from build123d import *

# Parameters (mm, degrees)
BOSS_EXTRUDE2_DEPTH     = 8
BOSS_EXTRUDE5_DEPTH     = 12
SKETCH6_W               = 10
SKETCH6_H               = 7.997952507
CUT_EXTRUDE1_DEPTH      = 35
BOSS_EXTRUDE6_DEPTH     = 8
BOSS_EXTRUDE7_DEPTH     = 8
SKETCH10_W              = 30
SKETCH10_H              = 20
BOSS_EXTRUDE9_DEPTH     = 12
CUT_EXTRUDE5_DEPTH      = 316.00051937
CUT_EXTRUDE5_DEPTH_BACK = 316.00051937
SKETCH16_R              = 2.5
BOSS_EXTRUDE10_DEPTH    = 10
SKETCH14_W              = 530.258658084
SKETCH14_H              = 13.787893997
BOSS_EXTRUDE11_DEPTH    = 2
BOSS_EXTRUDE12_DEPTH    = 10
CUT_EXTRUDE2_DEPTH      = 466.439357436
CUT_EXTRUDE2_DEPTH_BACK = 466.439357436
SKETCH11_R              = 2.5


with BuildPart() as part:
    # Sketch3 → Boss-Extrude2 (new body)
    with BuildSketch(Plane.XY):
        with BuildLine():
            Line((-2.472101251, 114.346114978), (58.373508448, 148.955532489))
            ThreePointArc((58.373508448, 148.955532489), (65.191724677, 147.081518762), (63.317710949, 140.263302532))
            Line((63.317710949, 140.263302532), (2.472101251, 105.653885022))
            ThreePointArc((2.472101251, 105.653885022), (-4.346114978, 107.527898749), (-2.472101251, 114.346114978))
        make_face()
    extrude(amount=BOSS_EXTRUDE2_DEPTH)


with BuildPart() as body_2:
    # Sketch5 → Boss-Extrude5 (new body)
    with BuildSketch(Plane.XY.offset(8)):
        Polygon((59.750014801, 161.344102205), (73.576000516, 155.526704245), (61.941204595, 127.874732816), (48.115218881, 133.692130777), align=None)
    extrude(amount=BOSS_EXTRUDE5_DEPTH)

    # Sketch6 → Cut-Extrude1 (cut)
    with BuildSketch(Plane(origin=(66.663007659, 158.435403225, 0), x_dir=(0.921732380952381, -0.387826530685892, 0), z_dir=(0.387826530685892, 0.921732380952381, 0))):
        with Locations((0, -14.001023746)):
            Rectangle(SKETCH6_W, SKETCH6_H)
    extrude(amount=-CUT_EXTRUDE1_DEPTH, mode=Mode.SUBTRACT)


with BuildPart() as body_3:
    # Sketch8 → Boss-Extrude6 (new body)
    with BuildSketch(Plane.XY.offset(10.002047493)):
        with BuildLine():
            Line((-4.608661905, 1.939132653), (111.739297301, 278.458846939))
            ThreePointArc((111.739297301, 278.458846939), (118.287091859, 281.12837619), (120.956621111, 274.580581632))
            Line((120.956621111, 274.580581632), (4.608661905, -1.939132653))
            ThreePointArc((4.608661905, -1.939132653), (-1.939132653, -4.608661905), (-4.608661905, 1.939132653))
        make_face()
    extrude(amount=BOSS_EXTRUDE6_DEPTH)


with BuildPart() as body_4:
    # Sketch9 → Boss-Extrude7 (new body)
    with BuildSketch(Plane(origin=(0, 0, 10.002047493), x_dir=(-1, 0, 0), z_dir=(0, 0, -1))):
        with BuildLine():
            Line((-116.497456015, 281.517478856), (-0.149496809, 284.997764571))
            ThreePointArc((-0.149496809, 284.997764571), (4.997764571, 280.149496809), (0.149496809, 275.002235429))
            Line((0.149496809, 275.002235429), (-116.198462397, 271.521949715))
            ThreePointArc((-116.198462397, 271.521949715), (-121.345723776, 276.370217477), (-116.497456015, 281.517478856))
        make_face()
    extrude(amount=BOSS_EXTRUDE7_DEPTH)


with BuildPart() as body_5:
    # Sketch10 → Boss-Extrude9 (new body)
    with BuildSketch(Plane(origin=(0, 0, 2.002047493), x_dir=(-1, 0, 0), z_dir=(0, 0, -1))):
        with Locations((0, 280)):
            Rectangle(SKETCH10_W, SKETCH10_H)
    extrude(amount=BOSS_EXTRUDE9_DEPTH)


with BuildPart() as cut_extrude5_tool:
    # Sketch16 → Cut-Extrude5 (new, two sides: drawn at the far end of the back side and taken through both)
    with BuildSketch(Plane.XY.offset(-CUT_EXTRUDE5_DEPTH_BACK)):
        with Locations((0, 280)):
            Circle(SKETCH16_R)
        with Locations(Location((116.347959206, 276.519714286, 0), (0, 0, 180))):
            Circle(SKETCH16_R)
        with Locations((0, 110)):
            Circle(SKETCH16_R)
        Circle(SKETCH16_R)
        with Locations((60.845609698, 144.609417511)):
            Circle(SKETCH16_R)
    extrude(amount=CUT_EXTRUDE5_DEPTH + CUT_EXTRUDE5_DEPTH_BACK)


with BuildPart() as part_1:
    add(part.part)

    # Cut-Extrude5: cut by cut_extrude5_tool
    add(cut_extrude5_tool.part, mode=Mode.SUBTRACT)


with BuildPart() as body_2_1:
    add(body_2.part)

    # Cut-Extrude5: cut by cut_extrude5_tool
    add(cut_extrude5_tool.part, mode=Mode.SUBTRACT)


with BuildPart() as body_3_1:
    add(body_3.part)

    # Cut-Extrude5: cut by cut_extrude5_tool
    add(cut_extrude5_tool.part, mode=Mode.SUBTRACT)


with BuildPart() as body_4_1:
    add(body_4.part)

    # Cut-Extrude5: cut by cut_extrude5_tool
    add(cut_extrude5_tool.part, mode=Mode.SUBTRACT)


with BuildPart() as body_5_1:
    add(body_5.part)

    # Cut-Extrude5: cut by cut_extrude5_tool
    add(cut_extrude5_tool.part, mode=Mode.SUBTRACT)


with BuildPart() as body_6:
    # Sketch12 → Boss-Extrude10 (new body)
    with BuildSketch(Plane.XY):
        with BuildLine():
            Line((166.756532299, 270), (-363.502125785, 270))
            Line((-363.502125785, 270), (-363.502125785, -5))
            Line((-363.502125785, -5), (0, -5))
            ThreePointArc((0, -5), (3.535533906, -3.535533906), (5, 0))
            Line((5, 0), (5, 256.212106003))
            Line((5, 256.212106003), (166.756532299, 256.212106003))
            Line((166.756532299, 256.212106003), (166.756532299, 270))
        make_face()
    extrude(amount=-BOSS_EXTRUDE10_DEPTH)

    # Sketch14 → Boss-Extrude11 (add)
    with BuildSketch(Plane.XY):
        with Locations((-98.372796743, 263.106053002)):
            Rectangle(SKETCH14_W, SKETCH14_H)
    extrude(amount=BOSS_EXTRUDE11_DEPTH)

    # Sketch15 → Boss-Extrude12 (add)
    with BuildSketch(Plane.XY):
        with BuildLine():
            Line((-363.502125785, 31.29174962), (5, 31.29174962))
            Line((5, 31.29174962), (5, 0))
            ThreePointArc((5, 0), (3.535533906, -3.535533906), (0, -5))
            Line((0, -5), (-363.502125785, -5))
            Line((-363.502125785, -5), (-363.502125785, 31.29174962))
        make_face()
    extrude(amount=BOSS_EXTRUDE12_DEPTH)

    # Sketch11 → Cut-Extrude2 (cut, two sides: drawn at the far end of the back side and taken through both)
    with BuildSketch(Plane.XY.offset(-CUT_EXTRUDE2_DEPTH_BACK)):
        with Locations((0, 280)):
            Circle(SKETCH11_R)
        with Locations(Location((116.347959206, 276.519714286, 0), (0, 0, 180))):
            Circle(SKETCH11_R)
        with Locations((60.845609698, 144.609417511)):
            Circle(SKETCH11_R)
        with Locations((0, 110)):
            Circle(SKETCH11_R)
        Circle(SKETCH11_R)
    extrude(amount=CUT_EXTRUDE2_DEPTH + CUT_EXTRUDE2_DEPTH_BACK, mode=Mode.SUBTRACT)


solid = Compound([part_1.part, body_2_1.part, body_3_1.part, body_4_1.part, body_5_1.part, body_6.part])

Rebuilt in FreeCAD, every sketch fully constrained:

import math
import FreeCAD as App
import Part
import Sketcher

V = App.Vector
Q = App.Units.Quantity


def add_polygon(sketch, points):
    """Adds a closed chain of lines whose ends are joined by coincident constraints."""
    first, n = sketch.GeometryCount, len(points)
    for a, b in zip(points, points[1:] + points[:1]):
        sketch.addGeometry(Part.LineSegment(App.Vector(*a, 0), App.Vector(*b, 0)), False)
    for i in range(n):
        sketch.addConstraint(Sketcher.Constraint("Coincident", first + i, 2, first + (i + 1) % n, 1))

doc = App.newDocument("Part")
params = doc.addObject("Spreadsheet::Sheet", "Params")
for row, (alias, value) in enumerate([
    ("sketch1_radius", "5 mm"),
    ("sketch1_length", "70 mm"),
    ("pad1_length", "8 mm"),
    ("sketch2_length", "15 mm"),
    ("sketch2_length2", "30 mm"),
    ("pad2_length", "12 mm"),
    ("sketch3_width", "10 mm"),
    ("pocket1_length", "35 mm"),
    ("sketch4_radius", "5 mm"),
    ("sketch4_length", "300 mm"),
    ("pad3_length", "8 mm"),
    ("sketch5_radius", "5 mm"),
    ("sketch5_length", "116.4 mm"),
    ("pad4_length", "8 mm"),
    ("sketch6_width", "30 mm"),
    ("sketch6_height", "20 mm"),
    ("pad5_length", "12 mm"),
    ("sketch7_diameter", "5 mm"),
    ("pad6_length", "316.000519 mm"),
    ("pad6_length2", "316.000519 mm"),
    ("sketch8_radius", "5 mm"),
    ("sketch8_height", "275 mm"),
    ("pad7_length", "10 mm"),
    ("pad8_length", "2 mm"),
    ("sketch10_radius", "5 mm"),
    ("pad9_length", "10 mm"),
    ("sketch11_diameter", "5 mm"),
], start=1):
    params.set(f"A{row}", alias)
    params.set(f"B{row}", "=" + value)
    params.setAlias(f"B{row}", alias)

body = doc.addObject("PartDesign::Body", "Body")

sketch1 = doc.addObject("Sketcher::SketchObject", "Sketch")
body.addObject(sketch1)
sketch1.AttachmentSupport = (doc.XY_Plane, [""])
sketch1.MapMode = "FlatFace"
sketch1.addGeometry([
    Part.LineSegment(V(58.373508, 148.955532, 0), V(-2.472101, 114.346115, 0)),
    Part.ArcOfCircle(Part.Circle(V(0, 110, 0), V(0, 0, 1), 5), math.radians(119.631528), math.radians(299.631528)),
    Part.LineSegment(V(2.472101, 105.653885, 0), V(63.317711, 140.263303, 0)),
    Part.ArcOfCircle(Part.Circle(V(60.84561, 144.609418, 0), V(0, 0, 1), 5), math.radians(-60.368472), math.radians(119.631528)),
], False)
sketch1.addConstraint([
    Sketcher.Constraint("Tangent", 0, 2, 1, 1),
    Sketcher.Constraint("Tangent", 1, 2, 2, 1),
    Sketcher.Constraint("Tangent", 2, 2, 3, 1),
    Sketcher.Constraint("Tangent", 3, 2, 0, 1),
    Sketcher.Constraint("Equal", 1, 3),
    Sketcher.Constraint("PointOnObject", 1, 3, -2),
    Sketcher.Constraint("Radius", 1, Q("5 mm")),
    Sketcher.Constraint("Distance", 0, Q("70 mm")),
    Sketcher.Constraint("DistanceY", -1, 1, 1, 3, Q("110 mm")),
    Sketcher.Constraint("DistanceX", 0, 2, -1, 1, Q("2.472101 mm")),
])
sketch1.setExpression("Constraints[6]", "Params.sketch1_radius")
sketch1.setExpression("Constraints[7]", "Params.sketch1_length")
pad1 = doc.addObject("PartDesign::Pad", "Pad")
body.addObject(pad1)
pad1.Profile = sketch1
pad1.setExpression("Length", "Params.pad1_length")
body2 = doc.addObject("PartDesign::Body", "Body001")

sketch2 = doc.addObject("Sketcher::SketchObject", "Sketch001")
body2.addObject(sketch2)
sketch2.AttachmentSupport = (doc.getObject("XY_Plane001"), [""])
sketch2.MapMode = "FlatFace"
sketch2.AttachmentOffset = App.Placement(V(0, 0, 8), App.Rotation())
add_polygon(sketch2, [(73.576001, 155.526704), (59.750015, 161.344102), (48.115219, 133.692131), (61.941205, 127.874733)])
sketch2.addConstraint([
    Sketcher.Constraint("Perpendicular", 0, 1),
    Sketcher.Constraint("Perpendicular", 1, 2),
    Sketcher.Constraint("Perpendicular", 2, 3),
    Sketcher.Constraint("Distance", 0, Q("15 mm")),
    Sketcher.Constraint("Distance", 1, Q("30 mm")),
    Sketcher.Constraint("DistanceX", -1, 1, 3, 2, Q("73.576001 mm")),
    Sketcher.Constraint("DistanceX", -1, 1, 1, 2, Q("48.115219 mm")),
    Sketcher.Constraint("DistanceY", -1, 1, 1, 2, Q("133.692131 mm")),
])
sketch2.setExpression("Constraints[7]", "Params.sketch2_length")
sketch2.setExpression("Constraints[8]", "Params.sketch2_length2")
pad2 = doc.addObject("PartDesign::Pad", "Pad001")
body2.addObject(pad2)
pad2.Profile = sketch2
pad2.setExpression("Length", "Params.pad2_length")

sketch3 = doc.addObject("Sketcher::SketchObject", "Sketch002")
body2.addObject(sketch3)
sketch3.Placement = App.Placement(V(66.663008, 158.435403, 0), App.Rotation(V(0.921732381, -0.387826531, 0), V(0, 0, -1), V(0.387826531, 0.921732381, 0), "ZXY"))
add_polygon(sketch3, [(-5, -10.002047), (-5, -18), (5, -18), (5, -10.002047)])
sketch3.addConstraint([
    Sketcher.Constraint("Vertical", 0),
    Sketcher.Constraint("Horizontal", 1),
    Sketcher.Constraint("Vertical", 2),
    Sketcher.Constraint("Horizontal", 3),
    Sketcher.Constraint("DistanceX", 1, 1, 1, 2, Q("10 mm")),
    Sketcher.Constraint("DistanceX", 0, 2, -1, 1, Q("5 mm")),
    Sketcher.Constraint("DistanceY", 0, 2, -1, 1, Q("18 mm")),
    Sketcher.Constraint("DistanceY", 0, 2, 0, 1, Q("7.997953 mm")),
])
sketch3.setExpression("Constraints[8]", "Params.sketch3_width")
pocket1 = doc.addObject("PartDesign::Pocket", "Pocket")
body2.addObject(pocket1)
pocket1.Profile = sketch3
pocket1.setExpression("Length", "Params.pocket1_length")
body3 = doc.addObject("PartDesign::Body", "Body002")

sketch4 = doc.addObject("Sketcher::SketchObject", "Sketch003")
body3.addObject(sketch4)
sketch4.AttachmentSupport = (doc.getObject("XY_Plane002"), [""])
sketch4.MapMode = "FlatFace"
sketch4.AttachmentOffset = App.Placement(V(0, 0, 10.002047), App.Rotation())
sketch4.addGeometry([
    Part.LineSegment(V(111.739297, 278.458847, 0), V(-4.608662, 1.939133, 0)),
    Part.ArcOfCircle(Part.Circle(V(0, 0, 0), V(0, 0, 1), 5), math.radians(157.180673), math.radians(337.180673)),
    Part.LineSegment(V(4.608662, -1.939133, 0), V(120.956621, 274.580582, 0)),
    Part.ArcOfCircle(Part.Circle(V(116.347959, 276.519714, 0), V(0, 0, 1), 5), math.radians(-22.819327), math.radians(157.180673)),
], False)
sketch4.addConstraint([
    Sketcher.Constraint("Tangent", 0, 2, 1, 1),
    Sketcher.Constraint("Tangent", 1, 2, 2, 1),
    Sketcher.Constraint("Tangent", 2, 2, 3, 1),
    Sketcher.Constraint("Tangent", 3, 2, 0, 1),
    Sketcher.Constraint("Coincident", 1, 3, -1, 1),
    Sketcher.Constraint("Equal", 1, 3),
    Sketcher.Constraint("Radius", 1, Q("5 mm")),
    Sketcher.Constraint("Distance", 0, Q("300 mm")),
    Sketcher.Constraint("DistanceX", -1, 1, 3, 3, Q("116.347959 mm")),
])
sketch4.setExpression("Constraints[6]", "Params.sketch4_radius")
sketch4.setExpression("Constraints[7]", "Params.sketch4_length")
pad3 = doc.addObject("PartDesign::Pad", "Pad002")
body3.addObject(pad3)
pad3.Profile = sketch4
pad3.setExpression("Length", "Params.pad3_length")
body4 = doc.addObject("PartDesign::Body", "Body003")

sketch5 = doc.addObject("Sketcher::SketchObject", "Sketch004")
body4.addObject(sketch5)
sketch5.AttachmentSupport = (doc.getObject("XY_Plane003"), [""])
sketch5.MapMode = "FlatFace"
sketch5.AttachmentOffset = App.Placement(V(0, 0, 10.002047), App.Rotation())
sketch5.addGeometry([
    Part.LineSegment(V(0.149497, 284.997765, 0), V(116.497456, 281.517479, 0)),
    Part.ArcOfCircle(Part.Circle(V(116.347959, 276.519714, 0), V(0, 0, 1), 5), math.radians(-91.713363), math.radians(88.286637)),
    Part.LineSegment(V(116.198462, 271.52195, 0), V(-0.149497, 275.002235, 0)),
    Part.ArcOfCircle(Part.Circle(V(0, 280, 0), V(0, 0, 1), 5), math.radians(88.286637), math.radians(268.286637)),
], False)
sketch5.addConstraint([
    Sketcher.Constraint("Tangent", 0, 2, 1, 2),
    Sketcher.Constraint("Tangent", 1, 1, 2, 1),
    Sketcher.Constraint("Tangent", 2, 2, 3, 2),
    Sketcher.Constraint("Tangent", 3, 1, 0, 1),
    Sketcher.Constraint("Equal", 1, 3),
    Sketcher.Constraint("PointOnObject", 3, 3, -2),
    Sketcher.Constraint("Radius", 1, Q("5 mm")),
    Sketcher.Constraint("DistanceY", -1, 1, 3, 3, Q("280 mm")),
    Sketcher.Constraint("Distance", 0, Q("116.4 mm")),
    Sketcher.Constraint("DistanceX", -1, 1, 1, 3, Q("116.347959 mm")),
])
sketch5.setExpression("Constraints[6]", "Params.sketch5_radius")
sketch5.setExpression("Constraints[8]", "Params.sketch5_length")
pad4 = doc.addObject("PartDesign::Pad", "Pad003")
body4.addObject(pad4)
pad4.Profile = sketch5
pad4.setExpression("Length", "Params.pad4_length")
pad4.Reversed = True
body5 = doc.addObject("PartDesign::Body", "Body004")

sketch6 = doc.addObject("Sketcher::SketchObject", "Sketch005")
body5.addObject(sketch6)
sketch6.AttachmentSupport = (doc.getObject("XY_Plane004"), [""])
sketch6.MapMode = "FlatFace"
sketch6.AttachmentOffset = App.Placement(V(0, 0, 2.002047), App.Rotation())
add_polygon(sketch6, [(15, 290), (15, 270), (-15, 270), (-15, 290)])
sketch6.addConstraint([
    Sketcher.Constraint("Vertical", 0),
    Sketcher.Constraint("Horizontal", 1),
    Sketcher.Constraint("Vertical", 2),
    Sketcher.Constraint("Horizontal", 3),
    Sketcher.Constraint("DistanceX", 1, 2, 1, 1, Q("30 mm")),
    Sketcher.Constraint("DistanceY", 0, 2, 0, 1, Q("20 mm")),
    Sketcher.Constraint("DistanceX", -1, 1, 0, 2, Q("15 mm")),
    Sketcher.Constraint("DistanceY", -1, 1, 0, 2, Q("270 mm")),
])
sketch6.setExpression("Constraints[8]", "Params.sketch6_width")
sketch6.setExpression("Constraints[9]", "Params.sketch6_height")
pad5 = doc.addObject("PartDesign::Pad", "Pad004")
body5.addObject(pad5)
pad5.Profile = sketch6
pad5.setExpression("Length", "Params.pad5_length")
pad5.Reversed = True
body6 = doc.addObject("PartDesign::Body", "Body005")
body6.AllowCompound = True

sketch7 = doc.addObject("Sketcher::SketchObject", "Sketch006")
body6.addObject(sketch7)
sketch7.AttachmentSupport = (doc.getObject("XY_Plane005"), [""])
sketch7.MapMode = "FlatFace"
sketch7.addGeometry([
    Part.Circle(V(0, 280, 0), V(0, 0, 1), 2.5),
    Part.Circle(V(116.347959, 276.519714, 0), V(0, 0, 1), 2.5),
    Part.Circle(V(0, 110, 0), V(0, 0, 1), 2.5),
    Part.Circle(V(0, 0, 0), V(0, 0, 1), 2.5),
    Part.Circle(V(60.84561, 144.609418, 0), V(0, 0, 1), 2.5),
], False)
sketch7.addConstraint([
    Sketcher.Constraint("Coincident", 3, 3, -1, 1),
    Sketcher.Constraint("Equal", 0, 1),
    Sketcher.Constraint("Equal", 1, 2),
    Sketcher.Constraint("Equal", 2, 3),
    Sketcher.Constraint("Equal", 3, 4),
    Sketcher.Constraint("PointOnObject", 0, 3, -2),
    Sketcher.Constraint("PointOnObject", 2, 3, -2),
    Sketcher.Constraint("Diameter", 0, Q("5 mm")),
    Sketcher.Constraint("DistanceY", -1, 1, 0, 3, Q("280 mm")),
    Sketcher.Constraint("DistanceY", -1, 1, 2, 3, Q("110 mm")),
    Sketcher.Constraint("DistanceX", -1, 1, 1, 3, Q("116.347959 mm")),
    Sketcher.Constraint("DistanceX", -1, 1, 4, 3, Q("60.84561 mm")),
    Sketcher.Constraint("DistanceY", -1, 1, 1, 3, Q("276.519714 mm")),
    Sketcher.Constraint("DistanceY", -1, 1, 4, 3, Q("144.609418 mm")),
])
sketch7.setExpression("Constraints[7]", "Params.sketch7_diameter")
pad6 = doc.addObject("PartDesign::Pad", "Pad005")
body6.addObject(pad6)
pad6.Profile = sketch7
pad6.Type = "TwoLengths"
pad6.setExpression("Length", "Params.pad6_length")
pad6.setExpression("Length2", "Params.pad6_length2")
doc.recompute()

body7 = doc.addObject("PartDesign::Body", "Body006")
body7.BaseFeature = body6
boolean = doc.addObject("PartDesign::Boolean", "Boolean")
body.addObject(boolean)
boolean.Type = "Cut"
boolean.addObjects([body7])
doc.recompute()

body8 = doc.addObject("PartDesign::Body", "Body007")
body8.BaseFeature = body6
boolean2 = doc.addObject("PartDesign::Boolean", "Boolean001")
body2.addObject(boolean2)
boolean2.Type = "Cut"
boolean2.addObjects([body8])
doc.recompute()

body9 = doc.addObject("PartDesign::Body", "Body008")
body9.BaseFeature = body6
boolean3 = doc.addObject("PartDesign::Boolean", "Boolean002")
body3.addObject(boolean3)
boolean3.Type = "Cut"
boolean3.addObjects([body9])
doc.recompute()

body10 = doc.addObject("PartDesign::Body", "Body009")
body10.BaseFeature = body6
boolean4 = doc.addObject("PartDesign::Boolean", "Boolean003")
body4.addObject(boolean4)
boolean4.Type = "Cut"
boolean4.addObjects([body10])
doc.recompute()

boolean5 = doc.addObject("PartDesign::Boolean", "Boolean004")
body5.addObject(boolean5)
boolean5.Type = "Cut"
boolean5.addObjects([body6])
body11 = doc.addObject("PartDesign::Body", "Body010")

sketch8 = doc.addObject("Sketcher::SketchObject", "Sketch007")
body11.addObject(sketch8)
sketch8.AttachmentSupport = (doc.getObject("XY_Plane010"), [""])
sketch8.MapMode = "FlatFace"
sketch8.addGeometry([
    Part.LineSegment(V(166.756532, 270, 0), V(-363.502126, 270, 0)),
    Part.LineSegment(V(-363.502126, 270, 0), V(-363.502126, -5, 0)),
    Part.LineSegment(V(-363.502126, -5, 0), V(0, -5, 0)),
    Part.ArcOfCircle(Part.Circle(V(0, 0, 0), V(0, 0, 1), 5), math.radians(-90), math.radians(0)),
    Part.LineSegment(V(5, 0, 0), V(5, 256.212106, 0)),
    Part.LineSegment(V(5, 256.212106, 0), V(166.756532, 256.212106, 0)),
    Part.LineSegment(V(166.756532, 256.212106, 0), V(166.756532, 270, 0)),
], False)
sketch8.addConstraint([
    Sketcher.Constraint("Coincident", 0, 2, 1, 1),
    Sketcher.Constraint("Coincident", 1, 2, 2, 1),
    Sketcher.Constraint("Tangent", 2, 2, 3, 1),
    Sketcher.Constraint("Tangent", 3, 2, 4, 1),
    Sketcher.Constraint("Coincident", 4, 2, 5, 1),
    Sketcher.Constraint("Coincident", 5, 2, 6, 1),
    Sketcher.Constraint("Coincident", 6, 2, 0, 1),
    Sketcher.Constraint("Horizontal", 0),
    Sketcher.Constraint("Vertical", 1),
    Sketcher.Constraint("Horizontal", 2),
    Sketcher.Constraint("Vertical", 4),
    Sketcher.Constraint("Horizontal", 5),
    Sketcher.Constraint("Vertical", 6),
    Sketcher.Constraint("Coincident", 3, 3, -1, 1),
    Sketcher.Constraint("Radius", 3, Q("5 mm")),
    Sketcher.Constraint("DistanceY", 1, 2, 1, 1, Q("275 mm")),
    Sketcher.Constraint("DistanceX", 0, 2, 0, 1, Q("530.258658 mm")),
    Sketcher.Constraint("DistanceX", 2, 1, 2, 2, Q("363.502126 mm")),
    Sketcher.Constraint("DistanceY", 4, 1, 4, 2, Q("256.212106 mm")),
])
sketch8.setExpression("Constraints[14]", "Params.sketch8_radius")
sketch8.setExpression("Constraints[15]", "Params.sketch8_height")
pad7 = doc.addObject("PartDesign::Pad", "Pad006")
body11.addObject(pad7)
pad7.Profile = sketch8
pad7.setExpression("Length", "Params.pad7_length")
pad7.Reversed = True

sketch9 = doc.addObject("Sketcher::SketchObject", "Sketch008")
body11.addObject(sketch9)
sketch9.AttachmentSupport = (doc.getObject("XY_Plane010"), [""])
sketch9.MapMode = "FlatFace"
add_polygon(sketch9, [(-363.502126, 270), (-363.502126, 256.212106), (166.756532, 256.212106), (166.756532, 270)])
sketch9.addConstraint([
    Sketcher.Constraint("Vertical", 0),
    Sketcher.Constraint("Horizontal", 1),
    Sketcher.Constraint("Vertical", 2),
    Sketcher.Constraint("Horizontal", 3),
    Sketcher.Constraint("DistanceY", -1, 1, 2, 2, Q("270 mm")),
    Sketcher.Constraint("DistanceX", 1, 1, 1, 2, Q("530.258658 mm")),
    Sketcher.Constraint("DistanceY", 0, 2, 0, 1, Q("13.787894 mm")),
    Sketcher.Constraint("DistanceX", 0, 2, -1, 1, Q("363.502126 mm")),
])
pad8 = doc.addObject("PartDesign::Pad", "Pad007")
body11.addObject(pad8)
pad8.Profile = sketch9
pad8.setExpression("Length", "Params.pad8_length")

sketch10 = doc.addObject("Sketcher::SketchObject", "Sketch009")
body11.addObject(sketch10)
sketch10.AttachmentSupport = (doc.getObject("XY_Plane010"), [""])
sketch10.MapMode = "FlatFace"
sketch10.addGeometry([
    Part.LineSegment(V(5, 31.29175, 0), V(-363.502126, 31.29175, 0)),
    Part.LineSegment(V(-363.502126, 31.29175, 0), V(-363.502126, -5, 0)),
    Part.LineSegment(V(-363.502126, -5, 0), V(0, -5, 0)),
    Part.ArcOfCircle(Part.Circle(V(0, 0, 0), V(0, 0, 1), 5), math.radians(-90), math.radians(0)),
    Part.LineSegment(V(5, 0, 0), V(5, 31.29175, 0)),
], False)
sketch10.addConstraint([
    Sketcher.Constraint("Coincident", 0, 2, 1, 1),
    Sketcher.Constraint("Coincident", 1, 2, 2, 1),
    Sketcher.Constraint("Tangent", 2, 2, 3, 1),
    Sketcher.Constraint("Tangent", 3, 2, 4, 1),
    Sketcher.Constraint("Coincident", 4, 2, 0, 1),
    Sketcher.Constraint("Horizontal", 0),
    Sketcher.Constraint("Vertical", 1),
    Sketcher.Constraint("Horizontal", 2),
    Sketcher.Constraint("Vertical", 4),
    Sketcher.Constraint("Coincident", 3, 3, -1, 1),
    Sketcher.Constraint("Radius", 3, Q("5 mm")),
    Sketcher.Constraint("DistanceY", 1, 2, 1, 1, Q("36.29175 mm")),
    Sketcher.Constraint("DistanceX", 0, 2, 0, 1, Q("368.502126 mm")),
])
sketch10.setExpression("Constraints[10]", "Params.sketch10_radius")
pad9 = doc.addObject("PartDesign::Pad", "Pad008")
body11.addObject(pad9)
pad9.Profile = sketch10
pad9.setExpression("Length", "Params.pad9_length")

sketch11 = doc.addObject("Sketcher::SketchObject", "Sketch010")
body11.addObject(sketch11)
sketch11.AttachmentSupport = (doc.getObject("XY_Plane010"), [""])
sketch11.MapMode = "FlatFace"
sketch11.addGeometry([
    Part.Circle(V(0, 280, 0), V(0, 0, 1), 2.5),
    Part.Circle(V(116.347959, 276.519714, 0), V(0, 0, 1), 2.5),
    Part.Circle(V(60.84561, 144.609418, 0), V(0, 0, 1), 2.5),
    Part.Circle(V(0, 110, 0), V(0, 0, 1), 2.5),
    Part.Circle(V(0, 0, 0), V(0, 0, 1), 2.5),
], False)
sketch11.addConstraint([
    Sketcher.Constraint("Coincident", 4, 3, -1, 1),
    Sketcher.Constraint("Equal", 0, 1),
    Sketcher.Constraint("Equal", 1, 2),
    Sketcher.Constraint("Equal", 2, 3),
    Sketcher.Constraint("Equal", 3, 4),
    Sketcher.Constraint("PointOnObject", 0, 3, -2),
    Sketcher.Constraint("PointOnObject", 3, 3, -2),
    Sketcher.Constraint("Diameter", 0, Q("5 mm")),
    Sketcher.Constraint("DistanceY", -1, 1, 0, 3, Q("280 mm")),
    Sketcher.Constraint("DistanceY", -1, 1, 3, 3, Q("110 mm")),
    Sketcher.Constraint("DistanceX", -1, 1, 1, 3, Q("116.347959 mm")),
    Sketcher.Constraint("DistanceX", -1, 1, 2, 3, Q("60.84561 mm")),
    Sketcher.Constraint("DistanceY", -1, 1, 1, 3, Q("276.519714 mm")),
    Sketcher.Constraint("DistanceY", -1, 1, 2, 3, Q("144.609418 mm")),
])
sketch11.setExpression("Constraints[7]", "Params.sketch11_diameter")
pocket2 = doc.addObject("PartDesign::Pocket", "Pocket001")
body11.addObject(pocket2)
pocket2.Profile = sketch11
pocket2.Type = "ThroughAll"
pocket2.Midplane = True

doc.recompute()
